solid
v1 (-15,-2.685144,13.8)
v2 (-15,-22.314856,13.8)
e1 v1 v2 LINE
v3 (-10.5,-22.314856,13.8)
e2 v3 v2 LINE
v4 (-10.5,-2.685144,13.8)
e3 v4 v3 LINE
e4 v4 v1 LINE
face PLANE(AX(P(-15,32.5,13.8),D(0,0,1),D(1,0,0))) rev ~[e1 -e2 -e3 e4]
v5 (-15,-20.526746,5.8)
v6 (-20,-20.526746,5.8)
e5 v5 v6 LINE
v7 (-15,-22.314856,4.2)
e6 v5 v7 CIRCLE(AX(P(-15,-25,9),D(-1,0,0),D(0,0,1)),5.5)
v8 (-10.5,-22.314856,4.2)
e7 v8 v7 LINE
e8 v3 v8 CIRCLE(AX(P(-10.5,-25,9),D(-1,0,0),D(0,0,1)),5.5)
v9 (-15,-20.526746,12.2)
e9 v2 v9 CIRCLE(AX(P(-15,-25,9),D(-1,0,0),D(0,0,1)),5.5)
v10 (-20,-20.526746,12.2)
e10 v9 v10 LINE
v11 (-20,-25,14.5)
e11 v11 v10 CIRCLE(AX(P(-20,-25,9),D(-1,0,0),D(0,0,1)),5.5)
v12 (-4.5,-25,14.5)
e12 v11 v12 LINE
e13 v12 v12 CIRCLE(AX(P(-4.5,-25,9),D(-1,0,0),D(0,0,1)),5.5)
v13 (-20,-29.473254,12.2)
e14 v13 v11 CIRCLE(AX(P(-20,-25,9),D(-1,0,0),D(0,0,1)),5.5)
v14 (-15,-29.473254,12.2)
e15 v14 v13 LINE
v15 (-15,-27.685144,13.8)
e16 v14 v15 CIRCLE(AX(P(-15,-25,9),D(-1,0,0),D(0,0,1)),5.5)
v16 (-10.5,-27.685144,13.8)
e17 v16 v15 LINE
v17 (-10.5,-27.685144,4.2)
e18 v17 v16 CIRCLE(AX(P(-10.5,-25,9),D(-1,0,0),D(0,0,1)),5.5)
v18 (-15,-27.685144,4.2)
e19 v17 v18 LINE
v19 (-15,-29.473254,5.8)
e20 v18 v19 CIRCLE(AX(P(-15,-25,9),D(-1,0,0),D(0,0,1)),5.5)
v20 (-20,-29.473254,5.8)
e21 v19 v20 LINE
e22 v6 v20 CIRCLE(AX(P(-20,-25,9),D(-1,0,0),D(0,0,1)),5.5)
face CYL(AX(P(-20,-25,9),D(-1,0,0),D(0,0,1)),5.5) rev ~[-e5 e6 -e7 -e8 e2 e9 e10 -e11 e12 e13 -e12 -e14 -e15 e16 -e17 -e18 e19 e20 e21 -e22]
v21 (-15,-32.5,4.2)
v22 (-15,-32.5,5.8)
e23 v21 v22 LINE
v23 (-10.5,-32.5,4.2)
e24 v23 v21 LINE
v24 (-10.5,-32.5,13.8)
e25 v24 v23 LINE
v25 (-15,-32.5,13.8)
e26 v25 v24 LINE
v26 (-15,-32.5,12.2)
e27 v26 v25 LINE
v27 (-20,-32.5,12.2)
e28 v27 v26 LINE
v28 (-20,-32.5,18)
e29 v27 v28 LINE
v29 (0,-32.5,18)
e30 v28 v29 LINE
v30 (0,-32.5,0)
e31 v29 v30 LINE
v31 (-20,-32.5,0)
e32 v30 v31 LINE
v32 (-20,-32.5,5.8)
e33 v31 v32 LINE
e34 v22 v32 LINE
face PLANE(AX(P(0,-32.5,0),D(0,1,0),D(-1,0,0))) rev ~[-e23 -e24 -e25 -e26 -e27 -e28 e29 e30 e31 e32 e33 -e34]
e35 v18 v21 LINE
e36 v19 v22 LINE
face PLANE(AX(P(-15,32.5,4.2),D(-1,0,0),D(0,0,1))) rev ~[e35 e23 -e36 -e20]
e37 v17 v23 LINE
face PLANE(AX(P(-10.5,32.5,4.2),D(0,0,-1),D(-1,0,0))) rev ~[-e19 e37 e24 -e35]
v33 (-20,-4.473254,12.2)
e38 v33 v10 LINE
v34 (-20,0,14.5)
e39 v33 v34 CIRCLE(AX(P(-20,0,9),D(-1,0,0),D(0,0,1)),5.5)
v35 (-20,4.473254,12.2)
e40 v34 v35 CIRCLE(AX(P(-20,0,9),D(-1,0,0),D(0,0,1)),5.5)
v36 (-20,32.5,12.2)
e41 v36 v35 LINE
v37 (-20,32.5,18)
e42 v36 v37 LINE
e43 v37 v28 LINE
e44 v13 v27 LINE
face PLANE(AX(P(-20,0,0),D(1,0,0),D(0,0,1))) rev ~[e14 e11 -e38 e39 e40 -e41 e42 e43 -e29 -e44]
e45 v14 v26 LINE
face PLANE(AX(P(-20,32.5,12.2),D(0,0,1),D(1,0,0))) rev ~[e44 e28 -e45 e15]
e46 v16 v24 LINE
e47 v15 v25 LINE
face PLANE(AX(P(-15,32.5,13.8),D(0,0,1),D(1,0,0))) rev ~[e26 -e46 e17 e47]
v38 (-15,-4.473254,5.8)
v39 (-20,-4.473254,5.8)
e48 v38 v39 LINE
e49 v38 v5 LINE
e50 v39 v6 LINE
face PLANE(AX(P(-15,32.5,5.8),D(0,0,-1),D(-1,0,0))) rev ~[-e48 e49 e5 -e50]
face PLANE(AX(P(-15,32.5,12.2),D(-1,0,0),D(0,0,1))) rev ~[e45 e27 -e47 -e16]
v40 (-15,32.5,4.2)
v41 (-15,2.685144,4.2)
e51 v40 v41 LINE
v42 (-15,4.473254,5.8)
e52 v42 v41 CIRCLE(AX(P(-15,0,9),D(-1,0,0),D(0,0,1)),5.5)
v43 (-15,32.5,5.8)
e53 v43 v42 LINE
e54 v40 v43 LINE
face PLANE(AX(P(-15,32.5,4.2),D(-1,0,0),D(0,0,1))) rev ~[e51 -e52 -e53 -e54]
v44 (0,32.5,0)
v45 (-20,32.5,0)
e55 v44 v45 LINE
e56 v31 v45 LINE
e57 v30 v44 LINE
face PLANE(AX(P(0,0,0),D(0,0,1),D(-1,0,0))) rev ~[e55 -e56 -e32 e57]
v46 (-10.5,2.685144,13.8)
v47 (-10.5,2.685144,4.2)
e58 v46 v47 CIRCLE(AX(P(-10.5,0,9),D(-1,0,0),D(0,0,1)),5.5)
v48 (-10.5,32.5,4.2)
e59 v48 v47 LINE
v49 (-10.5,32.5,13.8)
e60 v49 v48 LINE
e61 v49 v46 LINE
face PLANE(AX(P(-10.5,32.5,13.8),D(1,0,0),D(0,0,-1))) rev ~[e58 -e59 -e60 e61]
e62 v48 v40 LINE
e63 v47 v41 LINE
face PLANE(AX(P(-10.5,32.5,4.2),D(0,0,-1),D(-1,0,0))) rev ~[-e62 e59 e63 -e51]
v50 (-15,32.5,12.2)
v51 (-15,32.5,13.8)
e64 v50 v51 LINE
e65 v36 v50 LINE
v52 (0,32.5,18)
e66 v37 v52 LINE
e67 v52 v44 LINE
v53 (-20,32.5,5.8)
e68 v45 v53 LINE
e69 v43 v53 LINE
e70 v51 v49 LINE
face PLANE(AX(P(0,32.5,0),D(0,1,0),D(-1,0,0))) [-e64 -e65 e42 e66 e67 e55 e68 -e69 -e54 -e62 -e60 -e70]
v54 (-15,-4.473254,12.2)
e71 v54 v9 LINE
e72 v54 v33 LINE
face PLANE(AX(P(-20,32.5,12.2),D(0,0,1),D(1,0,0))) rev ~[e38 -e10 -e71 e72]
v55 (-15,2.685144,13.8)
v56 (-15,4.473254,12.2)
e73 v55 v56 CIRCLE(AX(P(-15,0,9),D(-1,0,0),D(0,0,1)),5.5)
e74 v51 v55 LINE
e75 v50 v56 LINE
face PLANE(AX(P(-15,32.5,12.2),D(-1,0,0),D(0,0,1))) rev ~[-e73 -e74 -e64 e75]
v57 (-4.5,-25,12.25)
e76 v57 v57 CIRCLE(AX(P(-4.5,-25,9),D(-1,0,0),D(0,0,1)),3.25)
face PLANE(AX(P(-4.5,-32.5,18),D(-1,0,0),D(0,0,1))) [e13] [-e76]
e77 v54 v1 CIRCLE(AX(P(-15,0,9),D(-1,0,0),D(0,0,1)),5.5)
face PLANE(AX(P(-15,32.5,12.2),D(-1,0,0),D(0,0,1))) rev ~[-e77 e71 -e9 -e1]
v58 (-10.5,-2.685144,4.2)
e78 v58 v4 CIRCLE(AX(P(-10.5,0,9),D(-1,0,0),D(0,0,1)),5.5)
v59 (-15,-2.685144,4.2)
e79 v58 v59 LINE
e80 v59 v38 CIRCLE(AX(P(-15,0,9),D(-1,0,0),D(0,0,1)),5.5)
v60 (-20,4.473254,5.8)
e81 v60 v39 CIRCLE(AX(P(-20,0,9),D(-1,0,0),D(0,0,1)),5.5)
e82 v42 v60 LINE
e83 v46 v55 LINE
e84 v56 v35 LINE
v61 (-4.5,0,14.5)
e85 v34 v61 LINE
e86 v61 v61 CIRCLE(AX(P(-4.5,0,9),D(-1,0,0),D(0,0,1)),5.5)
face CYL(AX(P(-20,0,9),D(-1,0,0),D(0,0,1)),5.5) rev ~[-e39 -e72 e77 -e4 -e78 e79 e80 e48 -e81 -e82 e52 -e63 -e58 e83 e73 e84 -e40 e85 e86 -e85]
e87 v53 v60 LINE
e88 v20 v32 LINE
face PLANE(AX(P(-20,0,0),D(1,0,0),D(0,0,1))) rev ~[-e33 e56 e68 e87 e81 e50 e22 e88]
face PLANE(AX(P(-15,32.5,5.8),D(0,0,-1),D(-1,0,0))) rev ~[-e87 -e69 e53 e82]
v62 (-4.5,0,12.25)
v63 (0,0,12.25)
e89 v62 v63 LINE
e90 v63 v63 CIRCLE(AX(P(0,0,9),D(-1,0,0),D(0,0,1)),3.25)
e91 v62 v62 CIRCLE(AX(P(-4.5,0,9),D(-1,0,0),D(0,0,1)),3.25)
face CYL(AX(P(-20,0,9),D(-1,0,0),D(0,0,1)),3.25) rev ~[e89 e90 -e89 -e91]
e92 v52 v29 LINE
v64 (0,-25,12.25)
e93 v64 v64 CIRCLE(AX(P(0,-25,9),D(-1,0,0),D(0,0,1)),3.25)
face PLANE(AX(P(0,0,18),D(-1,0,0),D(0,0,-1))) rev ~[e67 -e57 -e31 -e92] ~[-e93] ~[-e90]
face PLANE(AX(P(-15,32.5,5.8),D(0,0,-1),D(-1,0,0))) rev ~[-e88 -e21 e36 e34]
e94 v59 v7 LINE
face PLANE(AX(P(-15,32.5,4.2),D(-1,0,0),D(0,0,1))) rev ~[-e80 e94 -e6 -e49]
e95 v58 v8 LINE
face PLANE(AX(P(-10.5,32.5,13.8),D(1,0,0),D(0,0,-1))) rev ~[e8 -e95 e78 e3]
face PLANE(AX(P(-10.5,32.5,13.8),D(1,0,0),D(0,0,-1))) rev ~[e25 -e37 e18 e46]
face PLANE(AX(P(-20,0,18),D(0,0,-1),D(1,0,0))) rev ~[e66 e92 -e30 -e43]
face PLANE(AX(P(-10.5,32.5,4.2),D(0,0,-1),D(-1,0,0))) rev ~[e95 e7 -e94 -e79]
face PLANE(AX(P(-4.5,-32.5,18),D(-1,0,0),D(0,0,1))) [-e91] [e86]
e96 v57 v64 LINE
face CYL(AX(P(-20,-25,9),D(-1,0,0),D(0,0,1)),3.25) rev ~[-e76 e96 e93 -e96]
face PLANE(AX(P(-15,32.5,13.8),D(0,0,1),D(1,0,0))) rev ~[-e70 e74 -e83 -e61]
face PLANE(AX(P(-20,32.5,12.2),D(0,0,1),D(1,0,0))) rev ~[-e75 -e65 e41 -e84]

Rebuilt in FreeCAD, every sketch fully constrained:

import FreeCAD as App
import Part
import Sketcher
from FreeCAD import Vector

doc = App.newDocument("Part")
body = doc.addObject("PartDesign::Body", "Body")

sketch1 = body.newObject("Sketcher::SketchObject", "Sketch")
sketch1.AttachmentSupport = (doc.getObject("XZ_Plane"), [""])
sketch1.MapMode = "FlatFace"
sketch1.addGeometry(Part.LineSegment(Vector(0, 18, 0), Vector(0, 0, 0)), False)
sketch1.addGeometry(Part.LineSegment(Vector(0, 0, 0), Vector(-20, 0, 0)), False)
sketch1.addGeometry(Part.LineSegment(Vector(-20, 0, 0), Vector(-20, 18, 0)), False)
sketch1.addGeometry(Part.LineSegment(Vector(-20, 18, 0), Vector(0, 18, 0)), False)
sketch1.addConstraint(Sketcher.Constraint("Coincident", 0, 2, 1, 1))
sketch1.addConstraint(Sketcher.Constraint("Coincident", 1, 2, 2, 1))
sketch1.addConstraint(Sketcher.Constraint("Coincident", 2, 2, 3, 1))
sketch1.addConstraint(Sketcher.Constraint("Coincident", 3, 2, 0, 1))
sketch1.addConstraint(Sketcher.Constraint("Vertical", 0))
sketch1.addConstraint(Sketcher.Constraint("Horizontal", 1))
sketch1.addConstraint(Sketcher.Constraint("Vertical", 2))
sketch1.addConstraint(Sketcher.Constraint("Horizontal", 3))
sketch1.addConstraint(Sketcher.Constraint("Coincident", 0, 2, -1, 1))
sketch1.addConstraint(Sketcher.Constraint("DistanceX", 1, 2, 1, 1, 20.0))
sketch1.addConstraint(Sketcher.Constraint("DistanceY", 0, 2, 0, 1, 18.0))
pad1 = body.newObject("PartDesign::Pad", "Pad")
pad1.Profile = sketch1
pad1.Length = 65
pad1.Midplane = True

sketch2 = body.newObject("Sketcher::SketchObject", "Sketch001")
sketch2.AttachmentSupport = (doc.getObject("YZ_Plane"), [""])
sketch2.MapMode = "FlatFace"
sketch2.AttachmentOffset = App.Placement(Vector(0, 0, -20), App.Rotation())
sketch2.addGeometry(Part.Circle(Vector(-25, 9, 0), Vector(0, 0, 1), 3.2), False)
sketch2.addGeometry(Part.Circle(Vector(0, 9, 0), Vector(0, 0, 1), 3.2), False)
sketch2.addConstraint(Sketcher.Constraint("Equal", 0, 1))
sketch2.addConstraint(Sketcher.Constraint("PointOnObject", 1, 3, -2))
sketch2.addConstraint(Sketcher.Constraint("Horizontal", 0, 3, 1, 3))
sketch2.addConstraint(Sketcher.Constraint("Diameter", 0, 6.5))
sketch2.addConstraint(Sketcher.Constraint("DistanceX", 0, 3, -1, 1, 25.0))
sketch2.addConstraint(Sketcher.Constraint("DistanceY", -1, 1, 0, 3, 9.0))
pocket1 = body.newObject("PartDesign::Pocket", "Pocket")
pocket1.Profile = sketch2
pocket1.Type = "ThroughAll"
pocket1.Reversed = True

sketch3 = body.newObject("Sketcher::SketchObject", "Sketch002")
sketch3.AttachmentSupport = (doc.getObject("YZ_Plane"), [""])
sketch3.MapMode = "FlatFace"
sketch3.AttachmentOffset = App.Placement(Vector(0, 0, -20), App.Rotation())
sketch3.addGeometry(Part.Circle(Vector(-25, 9, 0), Vector(0, 0, 1), 5.5), False)
sketch3.addGeometry(Part.Circle(Vector(-25, 9, 0), Vector(0, 0, 1), 3.2), False)
sketch3.addGeometry(Part.Circle(Vector(0, 9, 0), Vector(0, 0, 1), 5.5), False)
sketch3.addGeometry(Part.Circle(Vector(0, 9, 0), Vector(0, 0, 1), 3.2), False)
sketch3.addConstraint(Sketcher.Constraint("Coincident", 1, 3, 0, 3))
sketch3.addConstraint(Sketcher.Constraint("Coincident", 3, 3, 2, 3))
sketch3.addConstraint(Sketcher.Constraint("Equal", 0, 2))
sketch3.addConstraint(Sketcher.Constraint("Equal", 1, 3))
sketch3.addConstraint(Sketcher.Constraint("PointOnObject", 2, 3, -2))
sketch3.addConstraint(Sketcher.Constraint("Horizontal", 1, 3, 2, 3))
sketch3.addConstraint(Sketcher.Constraint("Diameter", 0, 11.0))
sketch3.addConstraint(Sketcher.Constraint("Diameter", 1, 6.5))
sketch3.addConstraint(Sketcher.Constraint("DistanceX", 0, 3, -1, 1, 25.0))
sketch3.addConstraint(Sketcher.Constraint("DistanceY", -1, 1, 0, 3, 9.0))
pocket2 = body.newObject("PartDesign::Pocket", "Pocket001")
pocket2.Profile = sketch3
pocket2.Length = 15.5
pocket2.Reversed = True

sketch4 = body.newObject("Sketcher::SketchObject", "Sketch003")
sketch4.AttachmentSupport = (doc.getObject("XZ_Plane"), [""])
sketch4.MapMode = "FlatFace"
sketch4.AttachmentOffset = App.Placement(Vector(0, 0, -32.5), App.Rotation())
sketch4.addGeometry(Part.LineSegment(Vector(-15, 5.8, 0), Vector(-20, 5.8, 0)), False)
sketch4.addGeometry(Part.LineSegment(Vector(-20, 5.8, 0), Vector(-20, 12.2, 0)), False)
sketch4.addGeometry(Part.LineSegment(Vector(-20, 12.2, 0), Vector(-15, 12.2, 0)), False)
sketch4.addGeometry(Part.LineSegment(Vector(-15, 12.2, 0), Vector(-15, 13.8, 0)), False)
sketch4.addGeometry(Part.LineSegment(Vector(-15, 13.8, 0), Vector(-10.5, 13.8, 0)), False)
sketch4.addGeometry(Part.LineSegment(Vector(-10.5, 13.8, 0), Vector(-10.5, 4.2, 0)), False)
sketch4.addGeometry(Part.LineSegment(Vector(-10.5, 4.2, 0), Vector(-15, 4.2, 0)), False)
sketch4.addGeometry(Part.LineSegment(Vector(-15, 4.2, 0), Vector(-15, 5.8, 0)), False)
sketch4.addConstraint(Sketcher.Constraint("Coincident", 0, 2, 1, 1))
sketch4.addConstraint(Sketcher.Constraint("Coincident", 1, 2, 2, 1))
sketch4.addConstraint(Sketcher.Constraint("Coincident", 2, 2, 3, 1))
sketch4.addConstraint(Sketcher.Constraint("Coincident", 3, 2, 4, 1))
sketch4.addConstraint(Sketcher.Constraint("Coincident", 4, 2, 5, 1))
sketch4.addConstraint(Sketcher.Constraint("Coincident", 5, 2, 6, 1))
sketch4.addConstraint(Sketcher.Constraint("Coincident", 6, 2, 7, 1))
sketch4.addConstraint(Sketcher.Constraint("Coincident", 7, 2, 0, 1))
sketch4.addConstraint(Sketcher.Constraint("Horizontal", 0))
sketch4.addConstraint(Sketcher.Constraint("Vertical", 1))
sketch4.addConstraint(Sketcher.Constraint("Horizontal", 2))
sketch4.addConstraint(Sketcher.Constraint("Vertical", 3))
sketch4.addConstraint(Sketcher.Constraint("Horizontal", 4))
sketch4.addConstraint(Sketcher.Constraint("Vertical", 5))
sketch4.addConstraint(Sketcher.Constraint("Horizontal", 6))
sketch4.addConstraint(Sketcher.Constraint("Vertical", 7))
sketch4.addConstraint(Sketcher.Constraint("Vertical", 3, 2, 6, 2))
sketch4.addConstraint(Sketcher.Constraint("Equal", 3, 7))
sketch4.addConstraint(Sketcher.Constraint("DistanceX", 0, 2, 0, 1, 5.0))
sketch4.addConstraint(Sketcher.Constraint("DistanceX", 4, 1, 4, 2, 4.5))
sketch4.addConstraint(Sketcher.Constraint("DistanceY", 1, 1, 1, 2, 6.4))
sketch4.addConstraint(Sketcher.Constraint("DistanceY", 5, 2, 5, 1, 9.6))
sketch4.addConstraint(Sketcher.Constraint("DistanceX", 0, 2, -1, 1, 20.0))
sketch4.addConstraint(Sketcher.Constraint("DistanceY", -1, 1, 0, 2, 5.8))
pocket3 = body.newObject("PartDesign::Pocket", "Pocket002")
pocket3.Profile = sketch4
pocket3.Type = "ThroughAll"
pocket3.Reversed = True

doc.recompute()
